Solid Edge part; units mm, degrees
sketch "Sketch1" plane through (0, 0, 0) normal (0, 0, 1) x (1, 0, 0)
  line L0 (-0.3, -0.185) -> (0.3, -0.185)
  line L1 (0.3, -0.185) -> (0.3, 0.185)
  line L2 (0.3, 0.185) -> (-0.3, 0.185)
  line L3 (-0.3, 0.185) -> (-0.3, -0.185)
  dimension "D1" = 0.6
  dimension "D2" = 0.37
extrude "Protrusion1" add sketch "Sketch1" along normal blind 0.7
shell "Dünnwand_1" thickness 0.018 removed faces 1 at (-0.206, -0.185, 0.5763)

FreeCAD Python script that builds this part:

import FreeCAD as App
import Part
import Sketcher
from FreeCAD import Vector


def faces_at(feature, points):
    """Names of the faces that lie closest to the given points."""
    faces = feature.Shape.Faces
    near = lambda p: min(range(len(faces)), key=lambda i: faces[i].distToShape(Part.Vertex(*p))[0])
    return sorted({f"Face{near(p) + 1}" for p in points})

doc = App.newDocument("Part")
body = doc.addObject("PartDesign::Body", "Body")

# Sketch on XY plane
sketch1 = doc.addObject("Sketcher::SketchObject", "Sketch")
body.addObject(sketch1)
sketch1.AttachmentSupport = (doc.XY_Plane, [""])
sketch1.MapMode = "FlatFace"
sketch1.addGeometry([
    Part.LineSegment(Vector(-0.3, 0.18, 0), Vector(-0.3, -0.18, 0)),
    Part.LineSegment(Vector(-0.3, -0.18, 0), Vector(0.3, -0.18, 0)),
    Part.LineSegment(Vector(0.3, -0.18, 0), Vector(0.3, 0.18, 0)),
    Part.LineSegment(Vector(0.3, 0.18, 0), Vector(-0.3, 0.18, 0)),
], False)
sketch1.addConstraint([
    Sketcher.Constraint("Coincident", 0, 2, 1, 1),
    Sketcher.Constraint("Coincident", 1, 2, 2, 1),
    Sketcher.Constraint("Coincident", 2, 2, 3, 1),
    Sketcher.Constraint("Coincident", 3, 2, 0, 1),
    Sketcher.Constraint("Vertical", 0),
    Sketcher.Constraint("Horizontal", 1),
    Sketcher.Constraint("Vertical", 2),
    Sketcher.Constraint("Horizontal", 3),
    Sketcher.Constraint("Symmetric", 0, 2, 2, 2, -1, 1),
    Sketcher.Constraint("DistanceX", 0, 2, -1, 1, 0.3),
    Sketcher.Constraint("DistanceY", 0, 2, 0, 1, 0.37),
])
pad1 = doc.addObject("PartDesign::Pad", "Pad")
body.addObject(pad1)
pad1.Profile = sketch1
pad1.Length = 0.7
doc.recompute()

thickness = doc.addObject("PartDesign::Thickness", "Thickness")
body.addObject(thickness)
thickness.Base = (pad1, faces_at(pad1, [(-0.206, -0.185, 0.576)]))
thickness.Value = 0.018
thickness.Reversed = True
thickness.Join = "Intersection"

doc.recompute()
